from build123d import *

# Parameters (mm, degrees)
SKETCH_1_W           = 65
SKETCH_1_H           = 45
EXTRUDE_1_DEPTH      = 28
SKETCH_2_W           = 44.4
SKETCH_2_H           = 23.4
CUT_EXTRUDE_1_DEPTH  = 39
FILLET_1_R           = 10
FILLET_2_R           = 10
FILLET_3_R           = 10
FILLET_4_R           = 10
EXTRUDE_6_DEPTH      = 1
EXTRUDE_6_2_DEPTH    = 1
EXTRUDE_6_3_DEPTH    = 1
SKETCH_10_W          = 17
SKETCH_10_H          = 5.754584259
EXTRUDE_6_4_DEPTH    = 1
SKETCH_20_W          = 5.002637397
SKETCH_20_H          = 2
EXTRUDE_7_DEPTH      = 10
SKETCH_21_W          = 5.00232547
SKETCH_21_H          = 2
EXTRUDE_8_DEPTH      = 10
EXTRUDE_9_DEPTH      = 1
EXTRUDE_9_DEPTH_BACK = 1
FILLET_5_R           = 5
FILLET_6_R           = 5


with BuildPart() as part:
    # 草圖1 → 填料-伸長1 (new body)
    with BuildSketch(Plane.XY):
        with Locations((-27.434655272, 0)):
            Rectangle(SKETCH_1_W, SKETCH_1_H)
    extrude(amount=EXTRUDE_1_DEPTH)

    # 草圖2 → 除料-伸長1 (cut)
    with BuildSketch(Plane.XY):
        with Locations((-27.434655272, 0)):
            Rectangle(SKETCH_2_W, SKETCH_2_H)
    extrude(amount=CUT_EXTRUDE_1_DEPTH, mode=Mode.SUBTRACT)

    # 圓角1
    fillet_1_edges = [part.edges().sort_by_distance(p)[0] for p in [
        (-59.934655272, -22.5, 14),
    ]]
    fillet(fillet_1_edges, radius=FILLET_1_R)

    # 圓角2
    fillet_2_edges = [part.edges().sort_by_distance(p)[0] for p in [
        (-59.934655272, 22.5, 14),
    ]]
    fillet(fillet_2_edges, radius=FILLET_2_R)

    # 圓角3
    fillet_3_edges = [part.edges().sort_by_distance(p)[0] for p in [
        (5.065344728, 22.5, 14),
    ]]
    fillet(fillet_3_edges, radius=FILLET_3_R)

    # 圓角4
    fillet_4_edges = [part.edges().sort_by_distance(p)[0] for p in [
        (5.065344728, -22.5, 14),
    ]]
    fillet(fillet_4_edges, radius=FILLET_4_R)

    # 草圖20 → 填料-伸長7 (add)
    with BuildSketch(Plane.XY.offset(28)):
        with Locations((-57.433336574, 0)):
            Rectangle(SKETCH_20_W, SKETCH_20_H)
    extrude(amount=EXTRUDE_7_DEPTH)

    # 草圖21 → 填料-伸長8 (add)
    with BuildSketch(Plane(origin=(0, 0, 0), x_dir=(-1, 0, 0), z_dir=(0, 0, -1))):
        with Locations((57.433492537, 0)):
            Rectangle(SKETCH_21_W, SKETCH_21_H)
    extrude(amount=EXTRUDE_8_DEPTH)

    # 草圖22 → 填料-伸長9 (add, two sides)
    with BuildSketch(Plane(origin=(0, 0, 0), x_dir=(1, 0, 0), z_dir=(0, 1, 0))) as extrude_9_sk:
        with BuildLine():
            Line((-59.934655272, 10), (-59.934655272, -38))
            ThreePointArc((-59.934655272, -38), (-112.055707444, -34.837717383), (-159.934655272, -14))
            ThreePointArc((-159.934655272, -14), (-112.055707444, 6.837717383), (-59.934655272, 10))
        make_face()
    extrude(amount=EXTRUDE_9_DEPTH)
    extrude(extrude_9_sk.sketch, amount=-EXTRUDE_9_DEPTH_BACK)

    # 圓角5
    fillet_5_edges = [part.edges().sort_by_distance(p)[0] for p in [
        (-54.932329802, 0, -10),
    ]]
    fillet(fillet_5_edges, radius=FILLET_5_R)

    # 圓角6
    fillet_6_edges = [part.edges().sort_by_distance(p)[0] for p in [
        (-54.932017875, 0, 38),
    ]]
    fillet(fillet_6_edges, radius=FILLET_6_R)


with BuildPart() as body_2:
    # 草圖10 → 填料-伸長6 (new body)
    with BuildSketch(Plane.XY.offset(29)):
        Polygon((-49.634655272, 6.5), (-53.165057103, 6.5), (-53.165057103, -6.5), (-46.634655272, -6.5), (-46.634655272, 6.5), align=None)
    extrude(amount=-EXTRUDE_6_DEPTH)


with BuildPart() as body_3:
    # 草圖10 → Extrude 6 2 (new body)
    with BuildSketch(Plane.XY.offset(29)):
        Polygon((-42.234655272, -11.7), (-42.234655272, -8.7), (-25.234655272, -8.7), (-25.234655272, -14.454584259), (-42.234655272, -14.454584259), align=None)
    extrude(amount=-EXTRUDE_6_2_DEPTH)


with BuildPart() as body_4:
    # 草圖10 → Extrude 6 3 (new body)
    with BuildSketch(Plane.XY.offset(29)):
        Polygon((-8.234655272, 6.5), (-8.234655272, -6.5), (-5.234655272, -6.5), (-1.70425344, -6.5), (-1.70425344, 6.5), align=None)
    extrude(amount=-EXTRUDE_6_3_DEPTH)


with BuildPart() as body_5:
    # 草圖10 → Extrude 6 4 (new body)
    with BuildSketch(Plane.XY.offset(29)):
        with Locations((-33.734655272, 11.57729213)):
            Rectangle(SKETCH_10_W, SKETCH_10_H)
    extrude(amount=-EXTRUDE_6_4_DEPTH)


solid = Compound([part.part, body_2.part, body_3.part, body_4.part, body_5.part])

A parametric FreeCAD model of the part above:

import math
import FreeCAD as App
import Part
import Sketcher


def edges_at(feature, points):
    """Names of the edges that pass closest to the given points."""
    edges = feature.Shape.Edges
    near = lambda p: min(range(len(edges)), key=lambda i: edges[i].distToShape(Part.Vertex(*p))[0])
    return sorted({f"Edge{near(p) + 1}" for p in points})


def add_polygon(sketch, points):
    """Adds a closed chain of lines whose ends are joined by coincident constraints."""
    first, n = sketch.GeometryCount, len(points)
    for a, b in zip(points, points[1:] + points[:1]):
        sketch.addGeometry(Part.LineSegment(App.Vector(*a, 0), App.Vector(*b, 0)), False)
    for i in range(n):
        sketch.addConstraint(Sketcher.Constraint("Coincident", first + i, 2, first + (i + 1) % n, 1))

doc = App.newDocument("Part")
body = doc.addObject("PartDesign::Body", "Body")

# Sketch on XY plane
sketch1 = doc.addObject("Sketcher::SketchObject", "Sketch")
body.addObject(sketch1)
sketch1.AttachmentSupport = (doc.XY_Plane, [""])
sketch1.MapMode = "FlatFace"
add_polygon(sketch1, [(-60, 22), (-60, -22), (5, -22), (5, 22)])  # lines 0-3
sketch1.addConstraint([
    Sketcher.Constraint("Vertical", 0),
    Sketcher.Constraint("Horizontal", 1),
    Sketcher.Constraint("Vertical", 2),
    Sketcher.Constraint("Horizontal", 3),
    Sketcher.Constraint("DistanceX", 1, 1, 1, 2, 65.0),
    Sketcher.Constraint("DistanceY", 0, 2, 0, 1, 45.0),
    Sketcher.Constraint("DistanceY", 0, 2, -1, 1, 22.5),
    Sketcher.Constraint("DistanceX", 0, 2, -1, 1, 59.934655),
])
pad1 = doc.addObject("PartDesign::Pad", "Pad")
body.addObject(pad1)
pad1.Profile = sketch1
pad1.Length = 28

# Sketch on XY plane
sketch2 = doc.addObject("Sketcher::SketchObject", "Sketch001")
body.addObject(sketch2)
sketch2.AttachmentSupport = (doc.XY_Plane, [""])
sketch2.MapMode = "FlatFace"
add_polygon(sketch2, [(-50, 12), (-50, -12), (-5, -12), (-5, 12)])  # lines 0-3
sketch2.addConstraint([
    Sketcher.Constraint("Vertical", 0),
    Sketcher.Constraint("Horizontal", 1),
    Sketcher.Constraint("Vertical", 2),
    Sketcher.Constraint("Horizontal", 3),
    Sketcher.Constraint("DistanceX", 1, 1, 1, 2, 44.4),
    Sketcher.Constraint("DistanceY", 0, 2, 0, 1, 23.4),
    Sketcher.Constraint("DistanceY", 0, 2, -1, 1, 11.7),
    Sketcher.Constraint("DistanceX", 0, 2, -1, 1, 49.634655),
])
pocket1 = doc.addObject("PartDesign::Pocket", "Pocket")
body.addObject(pocket1)
pocket1.Profile = sketch2
pocket1.Length = 39
pocket1.Reversed = True
doc.recompute()

fillet = doc.addObject("PartDesign::Fillet", "Fillet")
body.addObject(fillet)
fillet.Base = (pocket1, edges_at(pocket1, [(-59.935, -22.5, 14)]))
fillet.Radius = 10
doc.recompute()

fillet2 = doc.addObject("PartDesign::Fillet", "Fillet001")
body.addObject(fillet2)
fillet2.Base = (fillet, edges_at(fillet, [(-59.935, 22.5, 14)]))
fillet2.Radius = 10
doc.recompute()

fillet3 = doc.addObject("PartDesign::Fillet", "Fillet002")
body.addObject(fillet3)
fillet3.Base = (fillet2, edges_at(fillet2, [(5.065, 22.5, 14)]))
fillet3.Radius = 10
doc.recompute()

fillet4 = doc.addObject("PartDesign::Fillet", "Fillet003")
body.addObject(fillet4)
fillet4.Base = (fillet3, edges_at(fillet3, [(5.065, -22.5, 14)]))
fillet4.Radius = 10

# Sketch on XY plane
sketch3 = doc.addObject("Sketcher::SketchObject", "Sketch002")
body.addObject(sketch3)
sketch3.AttachmentSupport = (doc.XY_Plane, [""])
sketch3.MapMode = "FlatFace"
sketch3.AttachmentOffset = App.Placement(App.Vector(0, 0, 28), App.Rotation())
add_polygon(sketch3, [(-59.9, 1), (-59.9, -1), (-54.9, -1), (-54.9, 1)])  # lines 0-3
sketch3.addConstraint([
    Sketcher.Constraint("Vertical", 0),
    Sketcher.Constraint("Horizontal", 1),
    Sketcher.Constraint("Vertical", 2),
    Sketcher.Constraint("Horizontal", 3),
    Sketcher.Constraint("DistanceY", 0, 2, 0, 1, 2.0),
    Sketcher.Constraint("DistanceY", 0, 2, -1, 1, 1.0),
    Sketcher.Constraint("DistanceX", 1, 1, 1, 2, 5.002637),
    Sketcher.Constraint("DistanceX", 0, 2, -1, 1, 59.934655),
])
pad2 = doc.addObject("PartDesign::Pad", "Pad001")
body.addObject(pad2)
pad2.Profile = sketch3
pad2.Length = 10

# Sketch on XY plane
sketch4 = doc.addObject("Sketcher::SketchObject", "Sketch003")
body.addObject(sketch4)
sketch4.AttachmentSupport = (doc.XY_Plane, [""])
sketch4.MapMode = "FlatFace"
add_polygon(sketch4, [(-54.9, 1), (-54.9, -1), (-59.9, -1), (-59.9, 1)])  # lines 0-3
sketch4.addConstraint([
    Sketcher.Constraint("Vertical", 0),
    Sketcher.Constraint("Horizontal", 1),
    Sketcher.Constraint("Vertical", 2),
    Sketcher.Constraint("Horizontal", 3),
    Sketcher.Constraint("DistanceY", 0, 2, 0, 1, 2.0),
    Sketcher.Constraint("DistanceY", 0, 2, -1, 1, 1.0),
    Sketcher.Constraint("DistanceX", 1, 2, 1, 1, 5.002325),
    Sketcher.Constraint("DistanceX", 0, 2, -1, 1, 54.93233),
])
pad3 = doc.addObject("PartDesign::Pad", "Pad002")
body.addObject(pad3)
pad3.Profile = sketch4
pad3.Length = 10
pad3.Reversed = True

# Sketch on XZ plane
sketch5 = doc.addObject("Sketcher::SketchObject", "Sketch004")
body.addObject(sketch5)
sketch5.AttachmentSupport = (doc.XZ_Plane, [""])
sketch5.MapMode = "FlatFace"
sketch5.addGeometry([
    Part.LineSegment(App.Vector(-60, 38, 0), App.Vector(-60, -10, 0)),
    Part.ArcOfCircle(Part.Circle(App.Vector(-77, 139, 0), App.Vector(0, 0, 1), 150), math.radians(-124), math.radians(-83)),
    Part.ArcOfCircle(Part.Circle(App.Vector(-77, -111, 0), App.Vector(0, 0, 1), 150), math.radians(83), math.radians(124)),
], False)
sketch5.addConstraint([
    Sketcher.Constraint("Coincident", 0, 2, 1, 2),
    Sketcher.Constraint("Coincident", 1, 1, 2, 2),
    Sketcher.Constraint("Coincident", 2, 1, 0, 1),
    Sketcher.Constraint("Vertical", 0),
    Sketcher.Constraint("Equal", 1, 2),
    Sketcher.Constraint("Vertical", 1, 3, 2, 3),
    Sketcher.Constraint("Radius", 1, 150.0),
    Sketcher.Constraint("DistanceY", 0, 2, 0, 1, 48.0),
    Sketcher.Constraint("DistanceY", 0, 2, -1, 1, 10.0),
    Sketcher.Constraint("DistanceX", 1, 1, 0, 2, 100.0),
    Sketcher.Constraint("DistanceX", 1, 3, -1, 1, 77.049765),
])
pad4 = doc.addObject("PartDesign::Pad", "Pad003")
body.addObject(pad4)
pad4.Profile = sketch5
pad4.Type = "TwoLengths"
pad4.Length = 1
pad4.Length2 = 1
pad4.Reversed = True
doc.recompute()

fillet5 = doc.addObject("PartDesign::Fillet", "Fillet004")
body.addObject(fillet5)
fillet5.Base = (pad4, edges_at(pad4, [(-54.932, 0, -10)]))
fillet5.Radius = 5
doc.recompute()

fillet6 = doc.addObject("PartDesign::Fillet", "Fillet005")
body.addObject(fillet6)
fillet6.Base = (fillet5, edges_at(fillet5, [(-54.932, 0, 38)]))
fillet6.Radius = 5
body2 = doc.addObject("PartDesign::Body", "Body001")

# Sketch on XY plane
sketch6 = doc.addObject("Sketcher::SketchObject", "Sketch005")
body2.addObject(sketch6)
sketch6.AttachmentSupport = (doc.getObject("XY_Plane001"), [""])
sketch6.MapMode = "FlatFace"
sketch6.AttachmentOffset = App.Placement(App.Vector(0, 0, 29), App.Rotation())
add_polygon(sketch6, [(-53, 6), (-53, -6), (-47, -6), (-47, 6)])  # lines 0-3
sketch6.addConstraint([
    Sketcher.Constraint("Vertical", 0),
    Sketcher.Constraint("Horizontal", 1),
    Sketcher.Constraint("Vertical", 2),
    Sketcher.Constraint("Horizontal", 3),
    Sketcher.Constraint("DistanceY", 0, 2, 0, 1, 13.0),
    Sketcher.Constraint("DistanceY", 0, 2, -1, 1, 6.5),
    Sketcher.Constraint("DistanceX", 1, 1, 1, 2, 6.530402),
    Sketcher.Constraint("DistanceX", 0, 2, -1, 1, 53.165057),
])
pad5 = doc.addObject("PartDesign::Pad", "Pad004")
body2.addObject(pad5)
pad5.Profile = sketch6
pad5.Length = 1
pad5.Reversed = True
body3 = doc.addObject("PartDesign::Body", "Body002")

# Sketch on XY plane
sketch7 = doc.addObject("Sketcher::SketchObject", "Sketch006")
body3.addObject(sketch7)
sketch7.AttachmentSupport = (doc.getObject("XY_Plane002"), [""])
sketch7.MapMode = "FlatFace"
sketch7.AttachmentOffset = App.Placement(App.Vector(0, 0, 29), App.Rotation())
add_polygon(sketch7, [(-42, -9), (-42, -14), (-25, -14), (-25, -9)])  # lines 0-3
sketch7.addConstraint([
    Sketcher.Constraint("Vertical", 0),
    Sketcher.Constraint("Horizontal", 1),
    Sketcher.Constraint("Vertical", 2),
    Sketcher.Constraint("Horizontal", 3),
    Sketcher.Constraint("DistanceX", 1, 1, 1, 2, 17.0),
    Sketcher.Constraint("DistanceY", 2, 2, -1, 1, 8.7),
    Sketcher.Constraint("DistanceY", 0, 2, 0, 1, 5.754584),
    Sketcher.Constraint("DistanceX", 0, 2, -1, 1, 42.234655),
])
pad6 = doc.addObject("PartDesign::Pad", "Pad005")
body3.addObject(pad6)
pad6.Profile = sketch7
pad6.Length = 1
pad6.Reversed = True
body4 = doc.addObject("PartDesign::Body", "Body003")

# Sketch on XY plane
sketch8 = doc.addObject("Sketcher::SketchObject", "Sketch007")
body4.addObject(sketch8)
sketch8.AttachmentSupport = (doc.getObject("XY_Plane003"), [""])
sketch8.MapMode = "FlatFace"
sketch8.AttachmentOffset = App.Placement(App.Vector(0, 0, 29), App.Rotation())
add_polygon(sketch8, [(-8, 6), (-8, -6), (-2, -6), (-2, 6)])  # lines 0-3
sketch8.addConstraint([
    Sketcher.Constraint("Vertical", 0),
    Sketcher.Constraint("Horizontal", 1),
    Sketcher.Constraint("Vertical", 2),
    Sketcher.Constraint("Horizontal", 3),
    Sketcher.Constraint("DistanceY", 0, 2, 0, 1, 13.0),
    Sketcher.Constraint("DistanceY", 0, 2, -1, 1, 6.5),
    Sketcher.Constraint("DistanceX", 1, 1, 1, 2, 6.530402),
    Sketcher.Constraint("DistanceX", 0, 2, -1, 1, 8.234655),
])
pad7 = doc.addObject("PartDesign::Pad", "Pad006")
body4.addObject(pad7)
pad7.Profile = sketch8
pad7.Length = 1
pad7.Reversed = True
body5 = doc.addObject("PartDesign::Body", "Body004")

# Sketch on XY plane
sketch9 = doc.addObject("Sketcher::SketchObject", "Sketch008")
body5.addObject(sketch9)
sketch9.AttachmentSupport = (doc.getObject("XY_Plane004"), [""])
sketch9.MapMode = "FlatFace"
sketch9.AttachmentOffset = App.Placement(App.Vector(0, 0, 29), App.Rotation())
add_polygon(sketch9, [(-42, 14), (-42, 9), (-25, 9), (-25, 14)])  # lines 0-3
sketch9.addConstraint([
    Sketcher.Constraint("Vertical", 0),
    Sketcher.Constraint("Horizontal", 1),
    Sketcher.Constraint("Vertical", 2),
    Sketcher.Constraint("Horizontal", 3),
    Sketcher.Constraint("DistanceX", 1, 1, 1, 2, 17.0),
    Sketcher.Constraint("DistanceY", -1, 1, 0, 2, 8.7),
    Sketcher.Constraint("DistanceY", 0, 2, 0, 1, 5.754584),
    Sketcher.Constraint("DistanceX", 0, 2, -1, 1, 42.234655),
])
pad8 = doc.addObject("PartDesign::Pad", "Pad007")
body5.addObject(pad8)
pad8.Profile = sketch9
pad8.Length = 1
pad8.Reversed = True

doc.recompute()
